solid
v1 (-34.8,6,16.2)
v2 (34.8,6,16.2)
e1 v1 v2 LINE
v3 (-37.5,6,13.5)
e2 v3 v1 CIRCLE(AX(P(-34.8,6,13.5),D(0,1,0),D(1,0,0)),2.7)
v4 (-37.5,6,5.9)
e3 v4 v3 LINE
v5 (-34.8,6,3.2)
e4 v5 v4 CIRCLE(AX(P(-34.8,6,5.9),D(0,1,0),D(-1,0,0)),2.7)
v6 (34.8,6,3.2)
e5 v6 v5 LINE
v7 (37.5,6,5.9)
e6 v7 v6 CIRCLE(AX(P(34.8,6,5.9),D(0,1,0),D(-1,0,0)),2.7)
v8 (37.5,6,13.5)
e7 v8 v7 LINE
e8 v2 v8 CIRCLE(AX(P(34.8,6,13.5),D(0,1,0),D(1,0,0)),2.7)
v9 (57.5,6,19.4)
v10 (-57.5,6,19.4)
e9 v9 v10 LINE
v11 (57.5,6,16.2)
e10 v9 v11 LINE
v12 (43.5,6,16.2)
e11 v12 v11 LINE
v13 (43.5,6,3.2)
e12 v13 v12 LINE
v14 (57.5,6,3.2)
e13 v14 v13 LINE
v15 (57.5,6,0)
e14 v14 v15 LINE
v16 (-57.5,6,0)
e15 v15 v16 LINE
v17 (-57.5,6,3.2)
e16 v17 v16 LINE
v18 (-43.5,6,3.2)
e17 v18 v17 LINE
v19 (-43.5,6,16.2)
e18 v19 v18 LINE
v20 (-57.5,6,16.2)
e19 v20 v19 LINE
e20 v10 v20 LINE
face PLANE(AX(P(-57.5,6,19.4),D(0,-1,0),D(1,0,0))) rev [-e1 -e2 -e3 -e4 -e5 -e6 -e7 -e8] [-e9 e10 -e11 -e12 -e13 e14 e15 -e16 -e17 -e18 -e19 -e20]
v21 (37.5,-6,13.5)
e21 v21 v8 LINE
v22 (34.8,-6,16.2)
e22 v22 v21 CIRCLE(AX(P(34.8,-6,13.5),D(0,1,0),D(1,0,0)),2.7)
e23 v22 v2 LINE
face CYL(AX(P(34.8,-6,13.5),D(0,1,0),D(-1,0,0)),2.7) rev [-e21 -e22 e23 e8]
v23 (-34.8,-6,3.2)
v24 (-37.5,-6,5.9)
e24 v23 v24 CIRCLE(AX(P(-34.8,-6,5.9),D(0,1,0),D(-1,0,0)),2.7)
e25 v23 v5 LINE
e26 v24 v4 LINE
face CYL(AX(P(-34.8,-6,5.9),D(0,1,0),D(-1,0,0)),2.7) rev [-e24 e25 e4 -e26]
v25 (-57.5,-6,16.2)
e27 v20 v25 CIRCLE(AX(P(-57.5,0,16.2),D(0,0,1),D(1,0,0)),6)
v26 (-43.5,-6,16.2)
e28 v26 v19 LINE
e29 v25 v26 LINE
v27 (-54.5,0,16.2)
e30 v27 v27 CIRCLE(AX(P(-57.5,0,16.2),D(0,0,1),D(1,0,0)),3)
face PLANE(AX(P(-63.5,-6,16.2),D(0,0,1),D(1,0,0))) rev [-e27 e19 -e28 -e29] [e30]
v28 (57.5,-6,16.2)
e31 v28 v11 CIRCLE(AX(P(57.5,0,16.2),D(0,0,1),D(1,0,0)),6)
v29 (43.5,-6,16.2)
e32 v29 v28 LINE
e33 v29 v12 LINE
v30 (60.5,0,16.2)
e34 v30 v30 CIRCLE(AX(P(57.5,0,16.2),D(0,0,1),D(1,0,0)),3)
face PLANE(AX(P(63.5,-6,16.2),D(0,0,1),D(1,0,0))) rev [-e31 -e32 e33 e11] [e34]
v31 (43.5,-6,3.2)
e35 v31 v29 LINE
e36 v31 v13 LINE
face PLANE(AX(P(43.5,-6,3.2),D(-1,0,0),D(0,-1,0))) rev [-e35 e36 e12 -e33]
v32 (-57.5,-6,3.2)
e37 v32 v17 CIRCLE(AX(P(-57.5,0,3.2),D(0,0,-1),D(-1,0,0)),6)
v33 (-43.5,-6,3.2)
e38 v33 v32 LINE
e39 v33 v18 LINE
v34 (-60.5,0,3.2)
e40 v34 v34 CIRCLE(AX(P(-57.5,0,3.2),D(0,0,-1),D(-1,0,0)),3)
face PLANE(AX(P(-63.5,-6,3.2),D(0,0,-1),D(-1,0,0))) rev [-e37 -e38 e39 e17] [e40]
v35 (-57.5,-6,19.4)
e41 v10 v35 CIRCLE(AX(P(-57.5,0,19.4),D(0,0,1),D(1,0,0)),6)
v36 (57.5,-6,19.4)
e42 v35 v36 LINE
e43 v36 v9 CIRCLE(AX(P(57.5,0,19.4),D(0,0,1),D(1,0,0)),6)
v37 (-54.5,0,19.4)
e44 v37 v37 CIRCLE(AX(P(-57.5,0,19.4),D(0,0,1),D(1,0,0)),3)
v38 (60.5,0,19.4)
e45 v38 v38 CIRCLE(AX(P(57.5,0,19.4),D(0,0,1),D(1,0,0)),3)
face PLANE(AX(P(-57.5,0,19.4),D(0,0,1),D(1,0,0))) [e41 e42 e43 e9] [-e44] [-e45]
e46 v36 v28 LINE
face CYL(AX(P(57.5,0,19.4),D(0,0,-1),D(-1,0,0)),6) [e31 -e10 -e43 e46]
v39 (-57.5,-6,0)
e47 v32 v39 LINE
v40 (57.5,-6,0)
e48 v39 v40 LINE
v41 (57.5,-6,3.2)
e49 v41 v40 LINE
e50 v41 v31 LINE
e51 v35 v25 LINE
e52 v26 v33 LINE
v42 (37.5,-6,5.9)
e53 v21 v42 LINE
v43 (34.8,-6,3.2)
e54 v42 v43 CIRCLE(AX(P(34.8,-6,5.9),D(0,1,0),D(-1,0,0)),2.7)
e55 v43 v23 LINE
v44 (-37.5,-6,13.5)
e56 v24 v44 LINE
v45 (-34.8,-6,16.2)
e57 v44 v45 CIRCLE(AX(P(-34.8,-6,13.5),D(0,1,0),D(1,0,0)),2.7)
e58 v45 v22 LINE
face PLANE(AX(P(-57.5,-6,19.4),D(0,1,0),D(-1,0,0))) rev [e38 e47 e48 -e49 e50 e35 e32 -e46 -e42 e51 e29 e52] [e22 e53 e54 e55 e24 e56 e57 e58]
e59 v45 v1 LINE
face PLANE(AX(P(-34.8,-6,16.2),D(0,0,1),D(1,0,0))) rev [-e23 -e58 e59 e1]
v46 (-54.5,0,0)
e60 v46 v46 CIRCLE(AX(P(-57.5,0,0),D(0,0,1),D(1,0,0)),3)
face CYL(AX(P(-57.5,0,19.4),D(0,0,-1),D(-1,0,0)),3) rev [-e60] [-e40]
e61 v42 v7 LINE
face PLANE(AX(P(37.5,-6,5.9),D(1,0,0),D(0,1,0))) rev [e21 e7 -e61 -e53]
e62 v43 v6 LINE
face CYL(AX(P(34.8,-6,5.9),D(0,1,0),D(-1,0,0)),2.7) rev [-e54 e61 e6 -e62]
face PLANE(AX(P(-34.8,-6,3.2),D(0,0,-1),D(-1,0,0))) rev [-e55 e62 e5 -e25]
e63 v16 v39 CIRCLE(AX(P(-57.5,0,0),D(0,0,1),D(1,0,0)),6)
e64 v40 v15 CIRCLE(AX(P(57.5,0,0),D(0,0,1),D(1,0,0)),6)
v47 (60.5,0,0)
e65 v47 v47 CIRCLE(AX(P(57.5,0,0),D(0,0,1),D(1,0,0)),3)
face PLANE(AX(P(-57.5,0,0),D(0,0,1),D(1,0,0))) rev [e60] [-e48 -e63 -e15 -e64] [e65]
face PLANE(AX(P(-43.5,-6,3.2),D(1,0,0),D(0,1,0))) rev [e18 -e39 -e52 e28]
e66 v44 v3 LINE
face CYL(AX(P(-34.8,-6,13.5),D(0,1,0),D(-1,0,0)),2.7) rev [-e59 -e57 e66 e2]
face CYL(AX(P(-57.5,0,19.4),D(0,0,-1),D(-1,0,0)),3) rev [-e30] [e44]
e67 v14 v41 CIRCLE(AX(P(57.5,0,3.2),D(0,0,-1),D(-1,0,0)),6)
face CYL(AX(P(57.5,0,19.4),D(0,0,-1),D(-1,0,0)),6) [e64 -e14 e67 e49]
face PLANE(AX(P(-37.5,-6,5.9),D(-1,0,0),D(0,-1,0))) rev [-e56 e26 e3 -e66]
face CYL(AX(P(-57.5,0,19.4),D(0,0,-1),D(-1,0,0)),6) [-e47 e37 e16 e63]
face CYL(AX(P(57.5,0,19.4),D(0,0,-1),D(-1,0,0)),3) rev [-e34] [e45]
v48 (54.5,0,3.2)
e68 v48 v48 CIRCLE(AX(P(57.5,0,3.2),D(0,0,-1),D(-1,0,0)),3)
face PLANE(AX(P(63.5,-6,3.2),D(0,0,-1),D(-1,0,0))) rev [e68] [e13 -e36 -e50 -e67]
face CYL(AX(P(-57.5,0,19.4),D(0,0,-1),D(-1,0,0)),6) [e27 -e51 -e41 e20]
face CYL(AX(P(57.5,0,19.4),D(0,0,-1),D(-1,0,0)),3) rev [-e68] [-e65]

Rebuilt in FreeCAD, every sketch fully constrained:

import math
import FreeCAD as App
import Part
import Sketcher

V = App.Vector


def add_polygon(sketch, points):
    """Adds a closed chain of lines whose ends are joined by coincident constraints."""
    first, n = sketch.GeometryCount, len(points)
    for a, b in zip(points, points[1:] + points[:1]):
        sketch.addGeometry(Part.LineSegment(App.Vector(*a, 0), App.Vector(*b, 0)), False)
    for i in range(n):
        sketch.addConstraint(Sketcher.Constraint("Coincident", first + i, 2, first + (i + 1) % n, 1))

doc = App.newDocument("Part")
params = doc.addObject("Spreadsheet::Sheet", "Params")
for row, (alias, value) in enumerate([
    ("sketch1_diameter", "6 mm"),
    ("sketch1_radius", "6 mm"),
    ("sketch1_width", "115 mm"),
    ("pad1_length", "19.4 mm"),
    ("sketch2_radius", "2.7 mm"),
    ("sketch2_width", "20 mm"),
    ("sketch2_height", "13 mm"),
    ("sketch2_width2", "69.6 mm"),
], start=1):
    params.set(f"A{row}", alias)
    params.set(f"B{row}", "=" + value)
    params.setAlias(f"B{row}", alias)

body = doc.addObject("PartDesign::Body", "Body")

sketch1 = body.newObject("Sketcher::SketchObject", "Sketch")
sketch1.AttachmentSupport = (doc.getObject("XY_Plane"), [""])
sketch1.MapMode = "FlatFace"
sketch1.addGeometry([
    Part.LineSegment(V(57.5, 6, 0), V(-57.5, 6, 0)),
    Part.ArcOfCircle(Part.Circle(V(-57.5, 0, 0), V(0, 0, 1), 6), math.radians(90), math.radians(270)),
    Part.LineSegment(V(-57.5, -6, 0), V(57.5, -6, 0)),
    Part.ArcOfCircle(Part.Circle(V(57.5, 0, 0), V(0, 0, 1), 6), math.radians(-90), math.radians(90)),
    Part.Circle(V(57.5, 0, 0), V(0, 0, 1), 3),
    Part.Circle(V(-57.5, 0, 0), V(0, 0, 1), 3),
], False)
sketch1.addConstraint([
    Sketcher.Constraint("Tangent", 0, 2, 1, 1),
    Sketcher.Constraint("Tangent", 1, 2, 2, 1),
    Sketcher.Constraint("Tangent", 2, 2, 3, 1),
    Sketcher.Constraint("Tangent", 3, 2, 0, 1),
    Sketcher.Constraint("Horizontal", 0),
    Sketcher.Constraint("Horizontal", 2),
    Sketcher.Constraint("Coincident", 4, 3, 3, 3),
    Sketcher.Constraint("Coincident", 5, 3, 1, 3),
    Sketcher.Constraint("Equal", 4, 5),
    Sketcher.Constraint("Symmetric", 1, 3, 3, 3, -1, 1),
    Sketcher.Constraint("Diameter", 4, 6.0),
    Sketcher.Constraint("Radius", 1, 6.0),
    Sketcher.Constraint("DistanceX", 0, 2, 0, 1, 115.0),
])
sketch1.setExpression("Constraints[10]", "Params.sketch1_diameter")
sketch1.setExpression("Constraints[11]", "Params.sketch1_radius")
sketch1.setExpression("Constraints[12]", "Params.sketch1_width")
pad1 = body.newObject("PartDesign::Pad", "Pad")
pad1.Profile = sketch1
pad1.setExpression("Length", "Params.pad1_length")

sketch2 = body.newObject("Sketcher::SketchObject", "Sketch001")
sketch2.AttachmentSupport = (doc.getObject("XZ_Plane"), [""])
sketch2.MapMode = "FlatFace"
sketch2.AttachmentOffset = App.Placement(V(0, 0, -6), App.Rotation())
add_polygon(sketch2, [(-63.5, 3.2), (-63.5, 16.2), (-43.5, 16.2), (-43.5, 3.2)])
add_polygon(sketch2, [(43.5, 3.2), (43.5, 16.2), (63.5, 16.2), (63.5, 3.2)])
sketch2.addGeometry(Part.LineSegment(V(34.8, 3.2, 0), V(-34.8, 3.2, 0)), False)
sketch2.addGeometry(Part.ArcOfCircle(Part.Circle(V(-34.8, 5.9, 0), V(0, 0, 1), 2.7), math.radians(-180), math.radians(-90)), False)
sketch2.addGeometry(Part.LineSegment(V(-37.5, 5.9, 0), V(-37.5, 13.5, 0)), False)
sketch2.addGeometry(Part.ArcOfCircle(Part.Circle(V(-34.8, 13.5, 0), V(0, 0, 1), 2.7), math.radians(90), math.radians(180)), False)
sketch2.addGeometry(Part.LineSegment(V(-34.8, 16.2, 0), V(34.8, 16.2, 0)), False)
sketch2.addGeometry(Part.ArcOfCircle(Part.Circle(V(34.8, 13.5, 0), V(0, 0, 1), 2.7), math.radians(0), math.radians(90)), False)
sketch2.addGeometry(Part.LineSegment(V(37.5, 13.5, 0), V(37.5, 5.9, 0)), False)
sketch2.addGeometry(Part.ArcOfCircle(Part.Circle(V(34.8, 5.9, 0), V(0, 0, 1), 2.7), math.radians(-90), math.radians(0)), False)
sketch2.addConstraint([
    Sketcher.Constraint("Tangent", 8, 2, 9, 2),
    Sketcher.Constraint("Tangent", 9, 1, 10, 1),
    Sketcher.Constraint("Tangent", 10, 2, 11, 2),
    Sketcher.Constraint("Tangent", 11, 1, 12, 1),
    Sketcher.Constraint("Tangent", 12, 2, 13, 2),
    Sketcher.Constraint("Tangent", 13, 1, 14, 1),
    Sketcher.Constraint("Tangent", 14, 2, 15, 2),
    Sketcher.Constraint("Tangent", 15, 1, 8, 1),
    Sketcher.Constraint("Vertical", 0),
    Sketcher.Constraint("Horizontal", 1),
    Sketcher.Constraint("Vertical", 2),
    Sketcher.Constraint("Horizontal", 3),
    Sketcher.Constraint("Vertical", 4),
    Sketcher.Constraint("Horizontal", 5),
    Sketcher.Constraint("Vertical", 6),
    Sketcher.Constraint("Horizontal", 7),
    Sketcher.Constraint("Horizontal", 8),
    Sketcher.Constraint("Vertical", 10),
    Sketcher.Constraint("Horizontal", 12),
    Sketcher.Constraint("Vertical", 14),
    Sketcher.Constraint("Equal", 9, 11),
    Sketcher.Constraint("Equal", 11, 13),
    Sketcher.Constraint("Equal", 13, 15),
    Sketcher.Constraint("Symmetric", 1, 2, 4, 2, -2),
    Sketcher.Constraint("Symmetric", 3, 2, 6, 2, -2),
    Sketcher.Constraint("Horizontal", 7, 2, 8, 2),
    Sketcher.Constraint("Horizontal", 5, 2, 11, 1),
    Sketcher.Constraint("Radius", 9, 2.7),
    Sketcher.Constraint("DistanceX", 1, 1, 1, 2, 20.0),
    Sketcher.Constraint("DistanceY", 0, 1, 0, 2, 13.0),
    Sketcher.Constraint("DistanceX", 8, 2, 8, 1, 69.6),
    Sketcher.Constraint("DistanceX", 1, 2, 4, 2, 87.0),
    Sketcher.Constraint("DistanceX", 2, 2, 9, 1, 6.0),
    Sketcher.Constraint("DistanceY", -1, 1, 9, 3, 5.9),
])
sketch2.setExpression("Constraints[35]", "Params.sketch2_radius")
sketch2.setExpression("Constraints[36]", "Params.sketch2_width")
sketch2.setExpression("Constraints[37]", "Params.sketch2_height")
sketch2.setExpression("Constraints[38]", "Params.sketch2_width2")
pocket1 = body.newObject("PartDesign::Pocket", "Pocket")
pocket1.Profile = sketch2
pocket1.Type = "ThroughAll"
pocket1.Reversed = True

doc.recompute()
